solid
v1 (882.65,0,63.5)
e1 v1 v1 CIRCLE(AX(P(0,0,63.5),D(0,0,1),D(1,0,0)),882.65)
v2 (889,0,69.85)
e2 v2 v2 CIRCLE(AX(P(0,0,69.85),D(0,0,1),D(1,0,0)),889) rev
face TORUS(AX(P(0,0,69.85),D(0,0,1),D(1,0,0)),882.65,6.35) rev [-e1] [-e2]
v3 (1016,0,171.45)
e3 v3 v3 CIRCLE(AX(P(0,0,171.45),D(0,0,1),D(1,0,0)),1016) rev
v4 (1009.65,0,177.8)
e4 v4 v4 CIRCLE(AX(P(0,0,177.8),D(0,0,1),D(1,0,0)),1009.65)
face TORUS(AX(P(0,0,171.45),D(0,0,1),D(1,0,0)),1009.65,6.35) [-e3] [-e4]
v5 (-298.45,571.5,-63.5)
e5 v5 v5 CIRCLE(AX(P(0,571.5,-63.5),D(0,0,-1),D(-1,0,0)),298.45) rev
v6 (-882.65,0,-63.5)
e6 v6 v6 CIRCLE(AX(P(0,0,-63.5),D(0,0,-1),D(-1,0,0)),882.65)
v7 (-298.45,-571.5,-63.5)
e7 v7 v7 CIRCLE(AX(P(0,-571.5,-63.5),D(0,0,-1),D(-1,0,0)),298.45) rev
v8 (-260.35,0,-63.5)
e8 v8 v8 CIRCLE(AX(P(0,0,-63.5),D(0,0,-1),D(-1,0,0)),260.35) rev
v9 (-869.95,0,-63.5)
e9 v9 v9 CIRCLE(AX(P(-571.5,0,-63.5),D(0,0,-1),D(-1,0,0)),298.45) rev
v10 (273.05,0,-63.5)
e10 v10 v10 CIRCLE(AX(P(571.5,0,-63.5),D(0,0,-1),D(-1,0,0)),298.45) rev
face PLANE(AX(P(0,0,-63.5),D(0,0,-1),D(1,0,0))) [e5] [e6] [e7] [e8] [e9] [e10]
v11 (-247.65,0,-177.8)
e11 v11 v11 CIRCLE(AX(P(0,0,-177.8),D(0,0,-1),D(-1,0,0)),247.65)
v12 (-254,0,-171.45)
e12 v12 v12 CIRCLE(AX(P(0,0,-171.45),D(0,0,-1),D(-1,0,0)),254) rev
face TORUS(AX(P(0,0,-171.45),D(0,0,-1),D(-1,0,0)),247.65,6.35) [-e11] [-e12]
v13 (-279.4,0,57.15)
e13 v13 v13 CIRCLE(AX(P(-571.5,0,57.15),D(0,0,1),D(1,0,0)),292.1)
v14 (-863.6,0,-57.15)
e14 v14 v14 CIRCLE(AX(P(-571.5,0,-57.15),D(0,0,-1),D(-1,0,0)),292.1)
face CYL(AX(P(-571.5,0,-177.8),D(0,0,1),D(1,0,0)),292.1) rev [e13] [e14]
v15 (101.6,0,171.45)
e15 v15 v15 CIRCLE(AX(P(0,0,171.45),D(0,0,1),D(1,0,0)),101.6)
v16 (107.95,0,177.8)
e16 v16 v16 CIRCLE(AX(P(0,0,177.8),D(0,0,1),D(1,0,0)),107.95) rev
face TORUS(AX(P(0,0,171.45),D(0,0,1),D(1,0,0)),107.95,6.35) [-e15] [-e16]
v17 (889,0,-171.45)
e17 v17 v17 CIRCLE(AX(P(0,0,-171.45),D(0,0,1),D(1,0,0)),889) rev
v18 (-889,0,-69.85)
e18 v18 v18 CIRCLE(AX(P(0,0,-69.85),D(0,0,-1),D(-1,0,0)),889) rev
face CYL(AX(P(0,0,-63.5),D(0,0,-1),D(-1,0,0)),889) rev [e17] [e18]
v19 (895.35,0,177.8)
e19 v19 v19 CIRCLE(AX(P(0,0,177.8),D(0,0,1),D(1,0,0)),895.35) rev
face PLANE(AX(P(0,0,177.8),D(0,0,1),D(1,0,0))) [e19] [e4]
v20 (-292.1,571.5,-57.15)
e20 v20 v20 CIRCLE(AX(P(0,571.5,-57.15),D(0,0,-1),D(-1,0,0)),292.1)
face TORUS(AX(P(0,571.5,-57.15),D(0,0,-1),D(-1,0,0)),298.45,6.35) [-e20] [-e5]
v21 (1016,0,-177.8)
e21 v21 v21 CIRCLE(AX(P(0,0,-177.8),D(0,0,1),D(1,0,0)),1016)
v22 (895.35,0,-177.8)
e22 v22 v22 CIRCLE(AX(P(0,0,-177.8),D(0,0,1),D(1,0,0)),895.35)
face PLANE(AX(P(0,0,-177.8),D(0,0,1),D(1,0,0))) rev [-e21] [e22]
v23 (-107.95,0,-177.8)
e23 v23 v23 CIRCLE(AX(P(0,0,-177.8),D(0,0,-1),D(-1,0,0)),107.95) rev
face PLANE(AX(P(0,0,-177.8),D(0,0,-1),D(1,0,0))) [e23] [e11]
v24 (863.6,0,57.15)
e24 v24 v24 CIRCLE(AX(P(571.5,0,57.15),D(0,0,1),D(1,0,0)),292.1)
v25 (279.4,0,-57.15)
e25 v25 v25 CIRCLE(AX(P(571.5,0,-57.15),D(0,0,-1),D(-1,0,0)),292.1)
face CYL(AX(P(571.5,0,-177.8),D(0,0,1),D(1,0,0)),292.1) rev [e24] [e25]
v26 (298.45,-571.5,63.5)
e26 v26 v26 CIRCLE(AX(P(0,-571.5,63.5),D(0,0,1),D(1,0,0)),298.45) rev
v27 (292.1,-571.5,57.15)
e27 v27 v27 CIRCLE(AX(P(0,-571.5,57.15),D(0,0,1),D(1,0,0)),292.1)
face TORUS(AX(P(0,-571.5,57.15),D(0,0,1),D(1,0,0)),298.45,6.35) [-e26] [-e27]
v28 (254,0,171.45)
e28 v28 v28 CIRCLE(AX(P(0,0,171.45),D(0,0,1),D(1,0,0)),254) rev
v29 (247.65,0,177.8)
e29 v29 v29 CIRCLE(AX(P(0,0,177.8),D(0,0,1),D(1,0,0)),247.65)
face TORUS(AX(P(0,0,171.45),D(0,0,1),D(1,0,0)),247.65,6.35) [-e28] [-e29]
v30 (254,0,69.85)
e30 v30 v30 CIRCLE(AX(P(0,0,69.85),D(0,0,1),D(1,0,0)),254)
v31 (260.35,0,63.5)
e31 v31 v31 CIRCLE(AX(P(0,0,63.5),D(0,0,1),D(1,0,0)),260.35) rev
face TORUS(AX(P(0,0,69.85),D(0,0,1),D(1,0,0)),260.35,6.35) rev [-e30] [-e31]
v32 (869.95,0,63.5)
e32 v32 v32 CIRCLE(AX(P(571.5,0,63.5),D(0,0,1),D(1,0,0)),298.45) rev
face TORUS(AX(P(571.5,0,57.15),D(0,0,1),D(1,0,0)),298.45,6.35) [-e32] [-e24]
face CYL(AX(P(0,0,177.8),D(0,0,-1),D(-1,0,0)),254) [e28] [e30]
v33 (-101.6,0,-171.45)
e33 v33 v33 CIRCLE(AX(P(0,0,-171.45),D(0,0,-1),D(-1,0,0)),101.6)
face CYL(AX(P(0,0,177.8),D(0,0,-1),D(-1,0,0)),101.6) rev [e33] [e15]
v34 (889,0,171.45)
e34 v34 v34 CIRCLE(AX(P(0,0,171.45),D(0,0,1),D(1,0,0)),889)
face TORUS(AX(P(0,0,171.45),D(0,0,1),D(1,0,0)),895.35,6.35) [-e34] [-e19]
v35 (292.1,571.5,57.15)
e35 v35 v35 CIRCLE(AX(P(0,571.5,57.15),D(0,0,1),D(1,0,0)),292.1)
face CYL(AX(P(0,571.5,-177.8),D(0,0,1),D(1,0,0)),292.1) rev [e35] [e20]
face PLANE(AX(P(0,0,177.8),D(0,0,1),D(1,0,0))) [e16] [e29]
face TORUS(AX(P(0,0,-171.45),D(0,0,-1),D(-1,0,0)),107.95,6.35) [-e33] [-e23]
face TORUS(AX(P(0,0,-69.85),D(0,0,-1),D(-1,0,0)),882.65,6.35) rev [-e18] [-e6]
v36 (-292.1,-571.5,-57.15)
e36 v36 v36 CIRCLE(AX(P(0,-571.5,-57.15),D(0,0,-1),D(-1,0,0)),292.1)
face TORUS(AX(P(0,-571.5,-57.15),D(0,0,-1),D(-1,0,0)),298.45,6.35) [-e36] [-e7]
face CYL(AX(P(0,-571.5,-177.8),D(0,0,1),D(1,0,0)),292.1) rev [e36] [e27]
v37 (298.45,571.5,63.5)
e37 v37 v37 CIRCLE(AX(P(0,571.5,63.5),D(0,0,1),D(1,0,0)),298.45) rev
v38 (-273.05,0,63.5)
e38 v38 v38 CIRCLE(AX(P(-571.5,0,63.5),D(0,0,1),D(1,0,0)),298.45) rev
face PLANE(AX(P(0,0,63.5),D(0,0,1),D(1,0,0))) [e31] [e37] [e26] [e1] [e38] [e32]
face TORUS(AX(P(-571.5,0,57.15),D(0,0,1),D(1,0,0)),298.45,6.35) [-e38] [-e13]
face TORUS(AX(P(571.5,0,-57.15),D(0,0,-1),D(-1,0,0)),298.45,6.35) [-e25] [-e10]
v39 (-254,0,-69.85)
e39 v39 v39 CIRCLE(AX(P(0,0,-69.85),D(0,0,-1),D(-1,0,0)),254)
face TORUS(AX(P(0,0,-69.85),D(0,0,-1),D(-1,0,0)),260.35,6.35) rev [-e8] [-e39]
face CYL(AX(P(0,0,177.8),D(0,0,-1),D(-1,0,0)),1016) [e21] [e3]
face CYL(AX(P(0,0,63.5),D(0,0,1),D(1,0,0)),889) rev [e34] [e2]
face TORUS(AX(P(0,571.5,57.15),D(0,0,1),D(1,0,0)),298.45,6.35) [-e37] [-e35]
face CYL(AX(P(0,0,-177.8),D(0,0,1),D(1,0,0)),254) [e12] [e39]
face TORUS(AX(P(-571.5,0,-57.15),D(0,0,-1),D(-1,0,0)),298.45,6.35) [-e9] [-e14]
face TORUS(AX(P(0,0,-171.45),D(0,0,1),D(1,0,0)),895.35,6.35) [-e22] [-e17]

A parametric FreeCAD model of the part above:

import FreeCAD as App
import Part
import Sketcher
from FreeCAD import Vector
Q = App.Units.Quantity


def edges_at(feature, points):
    """Names of the edges that pass closest to the given points."""
    edges = feature.Shape.Edges
    near = lambda p: min(range(len(edges)), key=lambda i: edges[i].distToShape(Part.Vertex(*p))[0])
    return sorted({f"Edge{near(p) + 1}" for p in points})

doc = App.newDocument("Part")
body = doc.addObject("PartDesign::Body", "Body")

# Sketch on XY plane
sketch1 = doc.addObject("Sketcher::SketchObject", "Sketch")
body.addObject(sketch1)
sketch1.AttachmentSupport = (doc.XY_Plane, [""])
sketch1.MapMode = "FlatFace"
sketch1.addGeometry([
    Part.Circle(Vector(0, 0, 0), Vector(0, 0, 1), 1016),
    Part.Circle(Vector(0, 0, 0), Vector(0, 0, 1), 102),
], False)
sketch1.addConstraint([
    Sketcher.Constraint("Coincident", 0, 3, -1, 1),
    Sketcher.Constraint("Coincident", 1, 3, -1, 1),
    Sketcher.Constraint("Diameter", 0, Q("80 in")),
    Sketcher.Constraint("Diameter", 1, Q("8 in")),
])
pad1 = doc.addObject("PartDesign::Pad", "Pad")
body.addObject(pad1)
pad1.Profile = sketch1
pad1.Length = Q("14 in")
pad1.Midplane = True

# Sketch on XY plane
sketch2 = doc.addObject("Sketcher::SketchObject", "Sketch001")
body.addObject(sketch2)
sketch2.AttachmentSupport = (doc.XY_Plane, [""])
sketch2.MapMode = "FlatFace"
sketch2.AttachmentOffset = App.Placement(Vector(0, 0, 2.5 * 25.4), App.Rotation())
sketch2.addGeometry([
    Part.Circle(Vector(0, 0, 0), Vector(0, 0, 1), 889),
    Part.Circle(Vector(0, 0, 0), Vector(0, 0, 1), 102),
], False)
sketch2.addConstraint([
    Sketcher.Constraint("Coincident", 0, 3, -1, 1),
    Sketcher.Constraint("Coincident", 1, 3, -1, 1),
    Sketcher.Constraint("Diameter", 0, Q("70 in")),
    Sketcher.Constraint("Diameter", 1, Q("8 in")),
])
pocket1 = doc.addObject("PartDesign::Pocket", "Pocket")
body.addObject(pocket1)
pocket1.Profile = sketch2
pocket1.Length = Q("4.5 in")
pocket1.Reversed = True

# Sketch on XY plane
sketch3 = doc.addObject("Sketcher::SketchObject", "Sketch002")
body.addObject(sketch3)
sketch3.AttachmentSupport = (doc.XY_Plane, [""])
sketch3.MapMode = "FlatFace"
sketch3.AttachmentOffset = App.Placement(Vector(0, 0, 2.5 * 25.4), App.Rotation())
sketch3.addGeometry([
    Part.Circle(Vector(0, 0, 0), Vector(0, 0, 1), 254),
    Part.Circle(Vector(0, 0, 0), Vector(0, 0, 1), 102),
], False)
sketch3.addConstraint([
    Sketcher.Constraint("Coincident", 0, 3, -1, 1),
    Sketcher.Constraint("Coincident", 1, 3, -1, 1),
    Sketcher.Constraint("Diameter", 0, Q("20 in")),
    Sketcher.Constraint("Diameter", 1, Q("8 in")),
])
pad2 = doc.addObject("PartDesign::Pad", "Pad001")
body.addObject(pad2)
pad2.Profile = sketch3
pad2.Length = Q("4.5 in")

# Sketch on XY plane
sketch4 = doc.addObject("Sketcher::SketchObject", "Sketch003")
body.addObject(sketch4)
sketch4.AttachmentSupport = (doc.XY_Plane, [""])
sketch4.MapMode = "FlatFace"
sketch4.AttachmentOffset = App.Placement(Vector(0, 0, 2.5 * 25.4), App.Rotation())
sketch4.addGeometry([
    Part.Circle(Vector(0, 572, 0), Vector(0, 0, 1), 292),
    Part.Circle(Vector(572, 0, 0), Vector(0, 0, 1), 292),
    Part.Circle(Vector(0, -572, 0), Vector(0, 0, 1), 292),
    Part.Circle(Vector(-572, 0, 0), Vector(0, 0, 1), 292),
], False)
sketch4.addConstraint([
    Sketcher.Constraint("Equal", 0, 1),
    Sketcher.Constraint("Equal", 1, 2),
    Sketcher.Constraint("Equal", 2, 3),
    Sketcher.Constraint("Symmetric", 0, 3, 2, 3, -1, 1),
    Sketcher.Constraint("Symmetric", 1, 3, 3, 3, -1, 1),
    Sketcher.Constraint("PointOnObject", 0, 3, -2),
    Sketcher.Constraint("PointOnObject", 1, 3, -1),
    Sketcher.Constraint("Diameter", 0, Q("23 in")),
    Sketcher.Constraint("DistanceY", 2, 3, 0, 3, Q("45 in")),
    Sketcher.Constraint("DistanceX", 3, 3, 1, 3, Q("45 in")),
])
pocket2 = doc.addObject("PartDesign::Pocket", "Pocket001")
body.addObject(pocket2)
pocket2.Profile = sketch4
pocket2.Type = "ThroughAll"
pocket2.Midplane = True
doc.recompute()

mirrored = doc.addObject("PartDesign::Mirrored", "Mirrored")
body.addObject(mirrored)
mirrored.Originals = [pocket1]
mirrored.MirrorPlane = (doc.XY_Plane, [""])
body.Tip = mirrored
doc.recompute()

mirrored2 = doc.addObject("PartDesign::Mirrored", "Mirrored001")
body.addObject(mirrored2)
mirrored2.Originals = [pad2]
mirrored2.MirrorPlane = (doc.XY_Plane, [""])
body.Tip = mirrored2
doc.recompute()

fillet = doc.addObject("PartDesign::Fillet", "Fillet")
body.addObject(fillet)
fillet.Base = (mirrored2, edges_at(mirrored2, [
    (-889, 0, 63.5),
    (-889, 0, 177.8),
    (-254, 0, 177.8),
    (-254, 0, 63.5),
    (-101.6, 0, 177.8),
    (-292.1, -571.5, 63.5),
    (279.4, 0, 63.5),
    (-863.6, 0, 63.5),
    (-292.1, 571.5, 63.5),
    (-889, 0, -63.5),
    (-292.1, 571.5, -63.5),
    (-863.6, 0, -63.5),
    (279.4, 0, -63.5),
    (-292.1, -571.5, -63.5),
    (-889, 0, -177.8),
    (-1016, 0, 177.8),
    (-254, 0, -63.5),
    (-254, 0, -177.8),
    (-101.6, 0, -177.8),
]))
fillet.Radius = Q("0.25 in")

doc.recompute()
